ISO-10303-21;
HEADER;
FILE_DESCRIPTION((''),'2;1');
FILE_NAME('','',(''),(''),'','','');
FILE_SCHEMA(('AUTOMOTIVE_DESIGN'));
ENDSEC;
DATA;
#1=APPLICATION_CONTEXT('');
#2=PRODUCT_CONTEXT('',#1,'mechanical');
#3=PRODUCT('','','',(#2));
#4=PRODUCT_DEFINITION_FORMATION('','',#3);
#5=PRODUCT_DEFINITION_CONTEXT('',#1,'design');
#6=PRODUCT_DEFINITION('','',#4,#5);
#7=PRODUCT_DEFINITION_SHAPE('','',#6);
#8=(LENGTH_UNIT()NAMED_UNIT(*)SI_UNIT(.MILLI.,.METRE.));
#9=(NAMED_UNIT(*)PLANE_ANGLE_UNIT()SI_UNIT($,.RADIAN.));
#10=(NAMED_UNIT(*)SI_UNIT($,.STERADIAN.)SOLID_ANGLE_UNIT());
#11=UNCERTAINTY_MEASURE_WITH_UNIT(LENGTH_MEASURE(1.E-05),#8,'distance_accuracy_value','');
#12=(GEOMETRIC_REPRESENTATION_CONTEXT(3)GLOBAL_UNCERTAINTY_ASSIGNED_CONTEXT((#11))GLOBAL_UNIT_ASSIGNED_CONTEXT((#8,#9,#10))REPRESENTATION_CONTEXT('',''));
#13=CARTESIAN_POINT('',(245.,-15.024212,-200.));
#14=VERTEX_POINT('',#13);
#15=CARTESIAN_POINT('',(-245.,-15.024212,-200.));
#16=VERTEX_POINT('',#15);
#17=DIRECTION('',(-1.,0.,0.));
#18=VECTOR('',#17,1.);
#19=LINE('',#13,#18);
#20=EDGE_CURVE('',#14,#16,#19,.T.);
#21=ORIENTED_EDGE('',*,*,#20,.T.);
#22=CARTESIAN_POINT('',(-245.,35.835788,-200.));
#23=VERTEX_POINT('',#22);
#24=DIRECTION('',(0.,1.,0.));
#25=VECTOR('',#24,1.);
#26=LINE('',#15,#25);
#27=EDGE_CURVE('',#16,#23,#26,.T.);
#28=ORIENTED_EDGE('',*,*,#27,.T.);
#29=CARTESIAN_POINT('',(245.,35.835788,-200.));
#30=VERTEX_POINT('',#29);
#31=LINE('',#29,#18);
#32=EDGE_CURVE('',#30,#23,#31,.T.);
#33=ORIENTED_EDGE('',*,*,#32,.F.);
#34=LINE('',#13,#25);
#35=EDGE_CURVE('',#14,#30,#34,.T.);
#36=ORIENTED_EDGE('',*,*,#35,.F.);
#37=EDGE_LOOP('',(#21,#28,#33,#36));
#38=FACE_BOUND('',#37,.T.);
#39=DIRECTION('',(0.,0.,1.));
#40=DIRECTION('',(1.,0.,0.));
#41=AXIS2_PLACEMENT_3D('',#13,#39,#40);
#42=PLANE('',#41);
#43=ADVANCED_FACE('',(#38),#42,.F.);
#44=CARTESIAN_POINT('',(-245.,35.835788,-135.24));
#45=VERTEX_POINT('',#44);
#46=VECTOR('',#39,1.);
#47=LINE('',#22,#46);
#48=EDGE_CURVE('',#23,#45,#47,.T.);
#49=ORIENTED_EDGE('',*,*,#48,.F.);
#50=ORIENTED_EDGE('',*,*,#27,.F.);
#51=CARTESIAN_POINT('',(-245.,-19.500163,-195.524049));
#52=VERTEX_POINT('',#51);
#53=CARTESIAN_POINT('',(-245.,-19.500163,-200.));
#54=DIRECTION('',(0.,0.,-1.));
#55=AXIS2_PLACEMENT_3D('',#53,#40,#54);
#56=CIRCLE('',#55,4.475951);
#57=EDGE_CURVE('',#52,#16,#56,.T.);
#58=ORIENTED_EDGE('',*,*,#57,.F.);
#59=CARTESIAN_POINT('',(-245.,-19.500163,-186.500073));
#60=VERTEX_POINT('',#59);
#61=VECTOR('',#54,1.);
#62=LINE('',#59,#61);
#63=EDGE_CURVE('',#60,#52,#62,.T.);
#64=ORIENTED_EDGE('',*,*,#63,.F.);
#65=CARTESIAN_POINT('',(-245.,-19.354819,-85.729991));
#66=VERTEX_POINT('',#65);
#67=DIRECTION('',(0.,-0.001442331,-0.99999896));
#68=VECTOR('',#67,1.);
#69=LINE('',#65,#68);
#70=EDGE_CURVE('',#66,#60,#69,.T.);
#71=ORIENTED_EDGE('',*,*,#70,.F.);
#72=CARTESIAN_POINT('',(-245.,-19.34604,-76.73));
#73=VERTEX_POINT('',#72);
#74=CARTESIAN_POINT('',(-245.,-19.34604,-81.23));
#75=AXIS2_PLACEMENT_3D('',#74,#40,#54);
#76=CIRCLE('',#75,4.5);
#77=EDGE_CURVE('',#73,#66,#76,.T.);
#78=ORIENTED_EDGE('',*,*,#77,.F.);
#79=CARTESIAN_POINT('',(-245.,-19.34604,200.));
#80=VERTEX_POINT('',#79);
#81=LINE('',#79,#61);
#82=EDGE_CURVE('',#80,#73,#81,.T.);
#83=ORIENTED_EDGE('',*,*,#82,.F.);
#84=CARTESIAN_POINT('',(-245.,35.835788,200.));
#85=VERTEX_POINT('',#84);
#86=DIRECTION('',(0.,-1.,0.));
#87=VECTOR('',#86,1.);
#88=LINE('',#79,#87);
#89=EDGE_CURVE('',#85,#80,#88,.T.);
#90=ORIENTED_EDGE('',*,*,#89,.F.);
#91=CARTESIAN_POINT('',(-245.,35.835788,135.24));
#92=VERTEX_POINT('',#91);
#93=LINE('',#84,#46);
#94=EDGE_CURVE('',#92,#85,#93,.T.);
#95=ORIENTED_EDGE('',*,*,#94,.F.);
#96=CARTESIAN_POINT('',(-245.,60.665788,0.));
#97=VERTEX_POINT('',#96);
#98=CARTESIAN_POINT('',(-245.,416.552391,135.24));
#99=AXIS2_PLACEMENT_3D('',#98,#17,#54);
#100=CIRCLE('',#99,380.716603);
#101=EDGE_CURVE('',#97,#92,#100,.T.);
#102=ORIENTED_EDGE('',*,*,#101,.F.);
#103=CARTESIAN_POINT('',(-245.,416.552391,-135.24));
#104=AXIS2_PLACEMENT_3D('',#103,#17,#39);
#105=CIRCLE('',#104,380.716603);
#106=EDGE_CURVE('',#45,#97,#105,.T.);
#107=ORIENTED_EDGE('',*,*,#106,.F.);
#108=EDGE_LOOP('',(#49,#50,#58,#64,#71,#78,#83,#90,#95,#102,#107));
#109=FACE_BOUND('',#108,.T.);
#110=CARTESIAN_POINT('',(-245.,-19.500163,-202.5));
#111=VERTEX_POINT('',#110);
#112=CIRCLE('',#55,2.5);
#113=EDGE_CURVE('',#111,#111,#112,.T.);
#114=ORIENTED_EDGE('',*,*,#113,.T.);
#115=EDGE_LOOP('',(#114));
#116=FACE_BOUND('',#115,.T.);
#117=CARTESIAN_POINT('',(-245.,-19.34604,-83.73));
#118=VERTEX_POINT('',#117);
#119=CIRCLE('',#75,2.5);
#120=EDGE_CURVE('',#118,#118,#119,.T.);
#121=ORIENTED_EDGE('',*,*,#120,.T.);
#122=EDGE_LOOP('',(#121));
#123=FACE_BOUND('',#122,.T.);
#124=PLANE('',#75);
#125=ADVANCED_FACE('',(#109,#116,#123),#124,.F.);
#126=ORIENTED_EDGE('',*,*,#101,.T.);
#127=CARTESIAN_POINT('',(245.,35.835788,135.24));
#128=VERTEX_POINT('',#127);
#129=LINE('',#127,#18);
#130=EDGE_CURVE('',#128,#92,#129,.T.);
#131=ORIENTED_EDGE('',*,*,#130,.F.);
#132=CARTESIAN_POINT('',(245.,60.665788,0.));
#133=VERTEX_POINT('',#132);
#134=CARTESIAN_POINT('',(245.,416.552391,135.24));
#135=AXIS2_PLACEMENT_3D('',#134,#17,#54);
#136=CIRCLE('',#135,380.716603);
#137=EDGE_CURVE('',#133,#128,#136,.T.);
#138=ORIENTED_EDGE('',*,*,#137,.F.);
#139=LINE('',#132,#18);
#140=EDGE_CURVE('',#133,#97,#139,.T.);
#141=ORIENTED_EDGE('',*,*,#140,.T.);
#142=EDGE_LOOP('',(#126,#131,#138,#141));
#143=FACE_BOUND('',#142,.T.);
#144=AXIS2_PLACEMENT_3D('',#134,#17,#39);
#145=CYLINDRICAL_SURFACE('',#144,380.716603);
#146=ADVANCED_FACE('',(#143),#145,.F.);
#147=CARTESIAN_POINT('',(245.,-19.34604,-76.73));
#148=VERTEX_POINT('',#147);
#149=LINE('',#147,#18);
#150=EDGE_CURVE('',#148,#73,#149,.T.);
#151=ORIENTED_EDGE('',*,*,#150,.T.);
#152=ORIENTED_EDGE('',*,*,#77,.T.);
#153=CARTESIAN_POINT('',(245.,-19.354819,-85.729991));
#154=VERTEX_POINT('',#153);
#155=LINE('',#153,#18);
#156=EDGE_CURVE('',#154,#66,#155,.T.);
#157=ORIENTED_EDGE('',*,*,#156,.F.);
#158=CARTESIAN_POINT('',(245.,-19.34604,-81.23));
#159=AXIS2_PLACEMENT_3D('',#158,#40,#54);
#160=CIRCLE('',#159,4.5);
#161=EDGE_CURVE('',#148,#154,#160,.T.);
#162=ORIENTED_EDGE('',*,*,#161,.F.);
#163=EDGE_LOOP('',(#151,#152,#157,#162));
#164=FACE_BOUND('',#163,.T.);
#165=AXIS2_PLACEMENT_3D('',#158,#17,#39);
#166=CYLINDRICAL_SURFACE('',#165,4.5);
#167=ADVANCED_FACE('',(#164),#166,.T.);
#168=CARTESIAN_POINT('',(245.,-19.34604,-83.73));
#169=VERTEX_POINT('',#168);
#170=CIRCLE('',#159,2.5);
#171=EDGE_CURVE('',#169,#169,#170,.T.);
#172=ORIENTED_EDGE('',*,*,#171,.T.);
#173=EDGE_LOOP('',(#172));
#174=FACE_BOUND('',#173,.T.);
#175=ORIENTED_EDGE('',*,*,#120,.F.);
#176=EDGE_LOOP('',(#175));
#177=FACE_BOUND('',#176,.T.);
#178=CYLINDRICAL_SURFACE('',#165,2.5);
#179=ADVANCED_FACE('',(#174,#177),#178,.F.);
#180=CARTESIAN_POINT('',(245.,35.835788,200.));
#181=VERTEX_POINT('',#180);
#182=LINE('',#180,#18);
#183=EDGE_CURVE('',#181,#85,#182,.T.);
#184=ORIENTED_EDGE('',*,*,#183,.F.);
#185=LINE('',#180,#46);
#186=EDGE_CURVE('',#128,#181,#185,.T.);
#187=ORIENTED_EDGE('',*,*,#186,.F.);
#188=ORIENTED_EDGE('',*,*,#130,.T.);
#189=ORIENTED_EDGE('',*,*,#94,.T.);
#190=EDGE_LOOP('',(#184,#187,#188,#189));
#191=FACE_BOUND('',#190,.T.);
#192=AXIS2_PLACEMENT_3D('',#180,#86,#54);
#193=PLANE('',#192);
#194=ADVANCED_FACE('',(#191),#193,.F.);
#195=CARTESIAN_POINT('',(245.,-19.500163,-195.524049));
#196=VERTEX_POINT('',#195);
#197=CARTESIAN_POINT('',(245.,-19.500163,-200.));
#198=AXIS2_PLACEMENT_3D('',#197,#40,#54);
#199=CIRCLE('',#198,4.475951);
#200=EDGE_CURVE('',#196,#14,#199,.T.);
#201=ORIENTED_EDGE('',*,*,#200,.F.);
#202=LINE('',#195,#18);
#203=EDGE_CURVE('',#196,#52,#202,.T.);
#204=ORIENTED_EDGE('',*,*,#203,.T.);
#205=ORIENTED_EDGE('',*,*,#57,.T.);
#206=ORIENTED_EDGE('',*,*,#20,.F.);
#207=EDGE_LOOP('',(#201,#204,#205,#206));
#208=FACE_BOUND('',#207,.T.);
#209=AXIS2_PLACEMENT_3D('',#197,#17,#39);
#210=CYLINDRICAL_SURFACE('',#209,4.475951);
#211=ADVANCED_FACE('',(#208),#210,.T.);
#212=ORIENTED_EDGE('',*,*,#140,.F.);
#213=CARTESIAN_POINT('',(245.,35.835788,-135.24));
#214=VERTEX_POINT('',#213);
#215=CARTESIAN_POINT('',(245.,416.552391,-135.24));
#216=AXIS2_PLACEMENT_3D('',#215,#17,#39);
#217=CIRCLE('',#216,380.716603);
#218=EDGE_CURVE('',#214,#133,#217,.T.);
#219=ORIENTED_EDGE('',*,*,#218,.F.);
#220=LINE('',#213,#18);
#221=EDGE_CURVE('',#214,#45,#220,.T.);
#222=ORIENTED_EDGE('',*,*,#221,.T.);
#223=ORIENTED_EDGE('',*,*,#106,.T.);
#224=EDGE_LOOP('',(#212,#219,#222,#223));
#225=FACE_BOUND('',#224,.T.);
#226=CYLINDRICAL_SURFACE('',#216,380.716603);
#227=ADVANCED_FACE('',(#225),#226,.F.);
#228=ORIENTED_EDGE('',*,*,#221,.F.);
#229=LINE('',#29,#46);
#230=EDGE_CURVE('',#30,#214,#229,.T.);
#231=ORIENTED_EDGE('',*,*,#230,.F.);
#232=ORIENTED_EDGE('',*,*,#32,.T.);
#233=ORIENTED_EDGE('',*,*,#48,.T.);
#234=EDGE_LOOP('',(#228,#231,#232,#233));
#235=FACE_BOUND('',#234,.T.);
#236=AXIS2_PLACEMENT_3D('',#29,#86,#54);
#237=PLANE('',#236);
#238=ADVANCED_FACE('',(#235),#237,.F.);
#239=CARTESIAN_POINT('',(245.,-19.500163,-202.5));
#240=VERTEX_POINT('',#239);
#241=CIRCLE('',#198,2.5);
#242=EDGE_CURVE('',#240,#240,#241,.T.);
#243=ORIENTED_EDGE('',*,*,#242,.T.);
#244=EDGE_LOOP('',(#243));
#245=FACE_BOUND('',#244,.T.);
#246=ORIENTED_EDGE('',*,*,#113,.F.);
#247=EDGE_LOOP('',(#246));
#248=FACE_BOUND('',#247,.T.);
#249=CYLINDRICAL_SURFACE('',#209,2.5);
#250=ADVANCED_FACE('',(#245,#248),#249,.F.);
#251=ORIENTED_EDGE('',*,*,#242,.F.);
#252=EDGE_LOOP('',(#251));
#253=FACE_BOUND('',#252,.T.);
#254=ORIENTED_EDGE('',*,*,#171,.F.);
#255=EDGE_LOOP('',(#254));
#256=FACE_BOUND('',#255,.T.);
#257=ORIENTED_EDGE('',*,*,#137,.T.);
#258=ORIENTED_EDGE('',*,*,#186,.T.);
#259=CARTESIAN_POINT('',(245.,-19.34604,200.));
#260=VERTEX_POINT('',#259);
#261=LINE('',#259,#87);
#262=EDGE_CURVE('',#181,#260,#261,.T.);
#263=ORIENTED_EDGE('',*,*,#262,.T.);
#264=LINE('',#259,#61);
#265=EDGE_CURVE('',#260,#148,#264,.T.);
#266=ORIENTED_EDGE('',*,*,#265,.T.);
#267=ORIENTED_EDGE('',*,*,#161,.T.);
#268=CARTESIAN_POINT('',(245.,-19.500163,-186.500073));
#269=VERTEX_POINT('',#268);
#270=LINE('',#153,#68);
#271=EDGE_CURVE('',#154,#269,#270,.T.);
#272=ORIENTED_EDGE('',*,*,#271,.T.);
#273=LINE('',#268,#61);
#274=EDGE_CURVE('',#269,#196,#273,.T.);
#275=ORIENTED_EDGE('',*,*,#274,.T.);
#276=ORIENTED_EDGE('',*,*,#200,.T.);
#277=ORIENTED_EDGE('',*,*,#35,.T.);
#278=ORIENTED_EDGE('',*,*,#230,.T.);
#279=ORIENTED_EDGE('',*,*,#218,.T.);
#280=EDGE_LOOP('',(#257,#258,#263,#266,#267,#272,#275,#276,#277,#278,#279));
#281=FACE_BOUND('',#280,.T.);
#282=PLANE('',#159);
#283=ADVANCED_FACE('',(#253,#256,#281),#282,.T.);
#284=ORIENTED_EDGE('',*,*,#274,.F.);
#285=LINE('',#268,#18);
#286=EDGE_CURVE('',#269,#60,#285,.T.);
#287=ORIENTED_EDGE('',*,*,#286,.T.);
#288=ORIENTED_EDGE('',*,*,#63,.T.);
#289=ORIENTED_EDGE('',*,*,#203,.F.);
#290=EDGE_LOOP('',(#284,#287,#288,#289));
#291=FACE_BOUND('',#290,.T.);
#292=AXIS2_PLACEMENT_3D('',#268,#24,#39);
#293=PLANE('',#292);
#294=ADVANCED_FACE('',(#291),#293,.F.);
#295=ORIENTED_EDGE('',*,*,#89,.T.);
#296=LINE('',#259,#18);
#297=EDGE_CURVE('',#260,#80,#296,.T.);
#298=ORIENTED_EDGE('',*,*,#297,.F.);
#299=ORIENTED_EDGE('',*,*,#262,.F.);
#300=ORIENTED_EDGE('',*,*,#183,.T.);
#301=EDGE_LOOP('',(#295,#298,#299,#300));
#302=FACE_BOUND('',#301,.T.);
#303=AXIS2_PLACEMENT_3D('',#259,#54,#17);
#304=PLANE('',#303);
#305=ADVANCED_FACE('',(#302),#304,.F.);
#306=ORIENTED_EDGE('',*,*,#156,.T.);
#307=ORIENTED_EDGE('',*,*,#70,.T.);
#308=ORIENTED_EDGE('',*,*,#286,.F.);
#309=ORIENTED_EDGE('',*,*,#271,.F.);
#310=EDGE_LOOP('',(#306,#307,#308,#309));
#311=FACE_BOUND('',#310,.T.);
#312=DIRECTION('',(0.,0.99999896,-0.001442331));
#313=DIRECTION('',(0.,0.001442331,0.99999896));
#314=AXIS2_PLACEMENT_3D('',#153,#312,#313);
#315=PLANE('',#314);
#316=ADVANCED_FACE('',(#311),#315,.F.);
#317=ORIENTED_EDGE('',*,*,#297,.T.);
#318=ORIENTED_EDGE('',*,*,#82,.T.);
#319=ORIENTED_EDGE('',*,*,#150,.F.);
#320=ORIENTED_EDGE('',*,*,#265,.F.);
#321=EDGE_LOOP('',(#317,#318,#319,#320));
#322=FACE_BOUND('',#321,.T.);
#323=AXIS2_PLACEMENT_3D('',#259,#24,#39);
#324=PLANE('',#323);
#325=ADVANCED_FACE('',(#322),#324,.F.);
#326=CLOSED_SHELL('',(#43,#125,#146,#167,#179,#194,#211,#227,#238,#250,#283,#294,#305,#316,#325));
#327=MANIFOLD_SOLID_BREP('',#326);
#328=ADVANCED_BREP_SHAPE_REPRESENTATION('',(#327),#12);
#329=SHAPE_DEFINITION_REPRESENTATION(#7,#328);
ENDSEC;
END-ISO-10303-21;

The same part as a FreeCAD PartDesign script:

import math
import FreeCAD as App
import Part
import Sketcher
from FreeCAD import Vector
Q = App.Units.Quantity

doc = App.newDocument("Part")
body = doc.addObject("PartDesign::Body", "Body")

# Sketch on YZ plane
sketch1 = doc.addObject("Sketcher::SketchObject", "Sketch")
body.addObject(sketch1)
sketch1.AttachmentSupport = (doc.YZ_Plane, [""])
sketch1.MapMode = "FlatFace"
sketch1.addGeometry([
    Part.LineSegment(Vector(35.8, 200, 0), Vector(-19.3, 200, 0)),  # 0
    Part.LineSegment(Vector(-19.3, 200, 0), Vector(-19.3, -76.7, 0)),  # 1
    Part.ArcOfCircle(Part.Circle(Vector(-19.3, -81.2, 0), Vector(0, 0, 1), 4.5), math.radians(90), math.radians(270)),  # 2
    Part.LineSegment(Vector(-19.4, -85.7, 0), Vector(-19.5, -186.5, 0)),  # 3
    Part.LineSegment(Vector(-19.5, -186.5, 0), Vector(-19.5, -195.5, 0)),  # 4
    Part.ArcOfCircle(Part.Circle(Vector(-19.5, -200, 0), Vector(0, 0, 1), 4.5), math.radians(90), math.radians(360)),  # 5
    Part.LineSegment(Vector(-15, -200, 0), Vector(35.8, -200, 0)),  # 6
    Part.LineSegment(Vector(35.8, -200, 0), Vector(35.8, -135.2, 0)),  # 7
    Part.ArcOfCircle(Part.Circle(Vector(416.6, -135.2, 0), Vector(0, 0, 1), 380.7), math.radians(159), math.radians(180)),  # 8
    Part.ArcOfCircle(Part.Circle(Vector(416.6, 135.2, 0), Vector(0, 0, 1), 380.7), math.radians(-180), math.radians(-159)),  # 9
    Part.LineSegment(Vector(35.8, 135.2, 0), Vector(35.8, 200, 0)),  # 10
    Part.Circle(Vector(-19.5, -200, 0), Vector(0, 0, 1), 2.5),  # 11
    Part.Circle(Vector(-19.3, -81.2, 0), Vector(0, 0, 1), 2.5),  # 12
], False)
sketch1.addConstraint([
    Sketcher.Constraint("Coincident", 0, 2, 1, 1),
    Sketcher.Constraint("Coincident", 1, 2, 2, 1),
    Sketcher.Constraint("Coincident", 2, 2, 3, 1),
    Sketcher.Constraint("Coincident", 3, 2, 4, 1),
    Sketcher.Constraint("Coincident", 4, 2, 5, 1),
    Sketcher.Constraint("Coincident", 5, 2, 6, 1),
    Sketcher.Constraint("Coincident", 6, 2, 7, 1),
    Sketcher.Constraint("Tangent", 7, 2, 8, 2),
    Sketcher.Constraint("Coincident", 8, 1, 9, 2),
    Sketcher.Constraint("Tangent", 9, 1, 10, 1),
    Sketcher.Constraint("Coincident", 10, 2, 0, 1),
    Sketcher.Constraint("Horizontal", 0),
    Sketcher.Constraint("Vertical", 1),
    Sketcher.Constraint("Vertical", 4),
    Sketcher.Constraint("Horizontal", 6),
    Sketcher.Constraint("Vertical", 7),
    Sketcher.Constraint("Vertical", 10),
    Sketcher.Constraint("Coincident", 11, 3, 5, 3),
    Sketcher.Constraint("Coincident", 12, 3, 2, 3),
    Sketcher.Constraint("Equal", 8, 9),
    Sketcher.Constraint("Equal", 11, 12),
    Sketcher.Constraint("Symmetric", 8, 3, 9, 3, -1),
    Sketcher.Constraint("Horizontal", 11, 3, 5, 2),
    Sketcher.Constraint("Vertical", 12, 3, 0, 2),
    Sketcher.Constraint("Vertical", 11, 3, 3, 2),
    Sketcher.Constraint("Equal", 7, 10),
    Sketcher.Constraint("Diameter", 11, Q("5 mm")),
    Sketcher.Constraint("Radius", 2, Q("4.5 mm")),
    Sketcher.Constraint("DistanceY", 5, 3, -1, 1, Q("200 mm")),
    Sketcher.Constraint("DistanceX", 6, 1, 6, 2, Q("50.86 mm")),
    Sketcher.Constraint("DistanceY", 1, 2, 1, 1, Q("276.73 mm")),
    Sketcher.Constraint("DistanceY", 7, 1, 7, 2, Q("64.76 mm")),
    Sketcher.Constraint("Radius", 5, Q("4.475951 mm")),
    Sketcher.Constraint("Radius", 8, Q("380.716603 mm")),
    Sketcher.Constraint("DistanceX", 0, 2, 0, 1, Q("55.181828 mm")),
    Sketcher.Constraint("DistanceY", 4, 2, 4, 1, Q("9.023976 mm")),
    Sketcher.Constraint("DistanceX", 2, 3, -1, 1, Q("19.34604 mm")),
    Sketcher.Constraint("DistanceX", 2, 2, -1, 1, Q("19.354819 mm")),
])
pad1 = doc.addObject("PartDesign::Pad", "Pad")
body.addObject(pad1)
pad1.Profile = sketch1
pad1.Length = 490
pad1.Midplane = True

doc.recompute()
